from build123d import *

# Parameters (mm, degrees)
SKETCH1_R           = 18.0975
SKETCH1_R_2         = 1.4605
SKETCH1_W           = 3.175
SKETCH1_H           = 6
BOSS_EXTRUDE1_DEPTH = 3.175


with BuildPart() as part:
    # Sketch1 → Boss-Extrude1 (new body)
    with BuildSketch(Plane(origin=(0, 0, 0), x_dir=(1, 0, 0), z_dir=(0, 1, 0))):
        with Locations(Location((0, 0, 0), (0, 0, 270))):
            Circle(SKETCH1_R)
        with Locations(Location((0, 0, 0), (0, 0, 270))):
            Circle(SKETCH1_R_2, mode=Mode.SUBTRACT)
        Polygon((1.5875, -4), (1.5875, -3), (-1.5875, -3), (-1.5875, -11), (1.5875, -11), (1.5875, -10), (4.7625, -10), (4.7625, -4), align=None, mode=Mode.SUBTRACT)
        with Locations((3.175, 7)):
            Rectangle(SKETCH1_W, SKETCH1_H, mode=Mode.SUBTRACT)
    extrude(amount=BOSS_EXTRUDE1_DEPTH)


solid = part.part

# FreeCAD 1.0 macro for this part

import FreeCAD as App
import Part
import Sketcher
Q = App.Units.Quantity

doc = App.newDocument("Part")
body = doc.addObject("PartDesign::Body", "Body")

sketch1 = body.newObject("Sketcher::SketchObject", "Sketch")
sketch1.AttachmentSupport = (doc.getObject("XZ_Plane"), [""])
sketch1.MapMode = "FlatFace"
sketch1.addGeometry(Part.Circle(App.Vector(0, 0, 0), App.Vector(0, 0, 1), 18.0975), False)
sketch1.addGeometry(Part.Circle(App.Vector(0, 0, 0), App.Vector(0, 0, 1), 1.4605), False)
sketch1.addGeometry(Part.LineSegment(App.Vector(4.7625, -4, 0), App.Vector(1.5875, -4, 0)), False)
sketch1.addGeometry(Part.LineSegment(App.Vector(1.5875, -4, 0), App.Vector(1.5875, -10, 0)), False)
sketch1.addGeometry(Part.LineSegment(App.Vector(1.5875, -10, 0), App.Vector(4.7625, -10, 0)), False)
sketch1.addGeometry(Part.LineSegment(App.Vector(4.7625, -10, 0), App.Vector(4.7625, -4, 0)), False)
sketch1.addGeometry(Part.LineSegment(App.Vector(1.5875, 3, 0), App.Vector(1.5875, 4, 0)), False)
sketch1.addGeometry(Part.LineSegment(App.Vector(1.5875, 4, 0), App.Vector(4.7625, 4, 0)), False)
sketch1.addGeometry(Part.LineSegment(App.Vector(4.7625, 4, 0), App.Vector(4.7625, 10, 0)), False)
sketch1.addGeometry(Part.LineSegment(App.Vector(4.7625, 10, 0), App.Vector(1.5875, 10, 0)), False)
sketch1.addGeometry(Part.LineSegment(App.Vector(1.5875, 10, 0), App.Vector(1.5875, 11, 0)), False)
sketch1.addGeometry(Part.LineSegment(App.Vector(1.5875, 11, 0), App.Vector(-1.5875, 11, 0)), False)
sketch1.addGeometry(Part.LineSegment(App.Vector(-1.5875, 11, 0), App.Vector(-1.5875, 3, 0)), False)
sketch1.addGeometry(Part.LineSegment(App.Vector(-1.5875, 3, 0), App.Vector(1.5875, 3, 0)), False)
sketch1.addConstraint(Sketcher.Constraint("Coincident", 2, 2, 3, 1))
sketch1.addConstraint(Sketcher.Constraint("Coincident", 3, 2, 4, 1))
sketch1.addConstraint(Sketcher.Constraint("Coincident", 4, 2, 5, 1))
sketch1.addConstraint(Sketcher.Constraint("Coincident", 5, 2, 2, 1))
sketch1.addConstraint(Sketcher.Constraint("Coincident", 6, 2, 7, 1))
sketch1.addConstraint(Sketcher.Constraint("Coincident", 7, 2, 8, 1))
sketch1.addConstraint(Sketcher.Constraint("Coincident", 8, 2, 9, 1))
sketch1.addConstraint(Sketcher.Constraint("Coincident", 9, 2, 10, 1))
sketch1.addConstraint(Sketcher.Constraint("Coincident", 10, 2, 11, 1))
sketch1.addConstraint(Sketcher.Constraint("Coincident", 11, 2, 12, 1))
sketch1.addConstraint(Sketcher.Constraint("Coincident", 12, 2, 13, 1))
sketch1.addConstraint(Sketcher.Constraint("Coincident", 13, 2, 6, 1))
sketch1.addConstraint(Sketcher.Constraint("Horizontal", 2))
sketch1.addConstraint(Sketcher.Constraint("Vertical", 3))
sketch1.addConstraint(Sketcher.Constraint("Horizontal", 4))
sketch1.addConstraint(Sketcher.Constraint("Vertical", 5))
sketch1.addConstraint(Sketcher.Constraint("Vertical", 6))
sketch1.addConstraint(Sketcher.Constraint("Horizontal", 7))
sketch1.addConstraint(Sketcher.Constraint("Vertical", 8))
sketch1.addConstraint(Sketcher.Constraint("Horizontal", 9))
sketch1.addConstraint(Sketcher.Constraint("Vertical", 10))
sketch1.addConstraint(Sketcher.Constraint("Horizontal", 11))
sketch1.addConstraint(Sketcher.Constraint("Vertical", 12))
sketch1.addConstraint(Sketcher.Constraint("Horizontal", 13))
sketch1.addConstraint(Sketcher.Constraint("Coincident", 0, 3, -1, 1))
sketch1.addConstraint(Sketcher.Constraint("Coincident", 1, 3, -1, 1))
sketch1.addConstraint(Sketcher.Constraint("Symmetric", 2, 2, 6, 2, -1))
sketch1.addConstraint(Sketcher.Constraint("Symmetric", 4, 2, 8, 2, -1))
sketch1.addConstraint(Sketcher.Constraint("Vertical", 6, 2, 9, 2))
sketch1.addConstraint(Sketcher.Constraint("Equal", 9, 11))
sketch1.addConstraint(Sketcher.Constraint("Equal", 6, 10))
sketch1.addConstraint(Sketcher.Constraint("DistanceY", 3, 2, 3, 1, Q("6 mm")))
sketch1.addConstraint(Sketcher.Constraint("DistanceY", 6, 1, 6, 2, Q("1 mm")))
sketch1.addConstraint(Sketcher.Constraint("Diameter", 0, Q("36.195 mm")))
sketch1.addConstraint(Sketcher.Constraint("Diameter", 1, Q("2.921 mm")))
sketch1.addConstraint(Sketcher.Constraint("DistanceY", 2, 2, -1, 1, Q("4 mm")))
sketch1.addConstraint(Sketcher.Constraint("DistanceX", 2, 2, 2, 1, Q("3.175 mm")))
sketch1.addConstraint(Sketcher.Constraint("DistanceX", -1, 1, 2, 2, Q("1.5875 mm")))
pad1 = body.newObject("PartDesign::Pad", "Pad")
pad1.Profile = sketch1
pad1.Length = 3.175
pad1.Reversed = True

doc.recompute()
